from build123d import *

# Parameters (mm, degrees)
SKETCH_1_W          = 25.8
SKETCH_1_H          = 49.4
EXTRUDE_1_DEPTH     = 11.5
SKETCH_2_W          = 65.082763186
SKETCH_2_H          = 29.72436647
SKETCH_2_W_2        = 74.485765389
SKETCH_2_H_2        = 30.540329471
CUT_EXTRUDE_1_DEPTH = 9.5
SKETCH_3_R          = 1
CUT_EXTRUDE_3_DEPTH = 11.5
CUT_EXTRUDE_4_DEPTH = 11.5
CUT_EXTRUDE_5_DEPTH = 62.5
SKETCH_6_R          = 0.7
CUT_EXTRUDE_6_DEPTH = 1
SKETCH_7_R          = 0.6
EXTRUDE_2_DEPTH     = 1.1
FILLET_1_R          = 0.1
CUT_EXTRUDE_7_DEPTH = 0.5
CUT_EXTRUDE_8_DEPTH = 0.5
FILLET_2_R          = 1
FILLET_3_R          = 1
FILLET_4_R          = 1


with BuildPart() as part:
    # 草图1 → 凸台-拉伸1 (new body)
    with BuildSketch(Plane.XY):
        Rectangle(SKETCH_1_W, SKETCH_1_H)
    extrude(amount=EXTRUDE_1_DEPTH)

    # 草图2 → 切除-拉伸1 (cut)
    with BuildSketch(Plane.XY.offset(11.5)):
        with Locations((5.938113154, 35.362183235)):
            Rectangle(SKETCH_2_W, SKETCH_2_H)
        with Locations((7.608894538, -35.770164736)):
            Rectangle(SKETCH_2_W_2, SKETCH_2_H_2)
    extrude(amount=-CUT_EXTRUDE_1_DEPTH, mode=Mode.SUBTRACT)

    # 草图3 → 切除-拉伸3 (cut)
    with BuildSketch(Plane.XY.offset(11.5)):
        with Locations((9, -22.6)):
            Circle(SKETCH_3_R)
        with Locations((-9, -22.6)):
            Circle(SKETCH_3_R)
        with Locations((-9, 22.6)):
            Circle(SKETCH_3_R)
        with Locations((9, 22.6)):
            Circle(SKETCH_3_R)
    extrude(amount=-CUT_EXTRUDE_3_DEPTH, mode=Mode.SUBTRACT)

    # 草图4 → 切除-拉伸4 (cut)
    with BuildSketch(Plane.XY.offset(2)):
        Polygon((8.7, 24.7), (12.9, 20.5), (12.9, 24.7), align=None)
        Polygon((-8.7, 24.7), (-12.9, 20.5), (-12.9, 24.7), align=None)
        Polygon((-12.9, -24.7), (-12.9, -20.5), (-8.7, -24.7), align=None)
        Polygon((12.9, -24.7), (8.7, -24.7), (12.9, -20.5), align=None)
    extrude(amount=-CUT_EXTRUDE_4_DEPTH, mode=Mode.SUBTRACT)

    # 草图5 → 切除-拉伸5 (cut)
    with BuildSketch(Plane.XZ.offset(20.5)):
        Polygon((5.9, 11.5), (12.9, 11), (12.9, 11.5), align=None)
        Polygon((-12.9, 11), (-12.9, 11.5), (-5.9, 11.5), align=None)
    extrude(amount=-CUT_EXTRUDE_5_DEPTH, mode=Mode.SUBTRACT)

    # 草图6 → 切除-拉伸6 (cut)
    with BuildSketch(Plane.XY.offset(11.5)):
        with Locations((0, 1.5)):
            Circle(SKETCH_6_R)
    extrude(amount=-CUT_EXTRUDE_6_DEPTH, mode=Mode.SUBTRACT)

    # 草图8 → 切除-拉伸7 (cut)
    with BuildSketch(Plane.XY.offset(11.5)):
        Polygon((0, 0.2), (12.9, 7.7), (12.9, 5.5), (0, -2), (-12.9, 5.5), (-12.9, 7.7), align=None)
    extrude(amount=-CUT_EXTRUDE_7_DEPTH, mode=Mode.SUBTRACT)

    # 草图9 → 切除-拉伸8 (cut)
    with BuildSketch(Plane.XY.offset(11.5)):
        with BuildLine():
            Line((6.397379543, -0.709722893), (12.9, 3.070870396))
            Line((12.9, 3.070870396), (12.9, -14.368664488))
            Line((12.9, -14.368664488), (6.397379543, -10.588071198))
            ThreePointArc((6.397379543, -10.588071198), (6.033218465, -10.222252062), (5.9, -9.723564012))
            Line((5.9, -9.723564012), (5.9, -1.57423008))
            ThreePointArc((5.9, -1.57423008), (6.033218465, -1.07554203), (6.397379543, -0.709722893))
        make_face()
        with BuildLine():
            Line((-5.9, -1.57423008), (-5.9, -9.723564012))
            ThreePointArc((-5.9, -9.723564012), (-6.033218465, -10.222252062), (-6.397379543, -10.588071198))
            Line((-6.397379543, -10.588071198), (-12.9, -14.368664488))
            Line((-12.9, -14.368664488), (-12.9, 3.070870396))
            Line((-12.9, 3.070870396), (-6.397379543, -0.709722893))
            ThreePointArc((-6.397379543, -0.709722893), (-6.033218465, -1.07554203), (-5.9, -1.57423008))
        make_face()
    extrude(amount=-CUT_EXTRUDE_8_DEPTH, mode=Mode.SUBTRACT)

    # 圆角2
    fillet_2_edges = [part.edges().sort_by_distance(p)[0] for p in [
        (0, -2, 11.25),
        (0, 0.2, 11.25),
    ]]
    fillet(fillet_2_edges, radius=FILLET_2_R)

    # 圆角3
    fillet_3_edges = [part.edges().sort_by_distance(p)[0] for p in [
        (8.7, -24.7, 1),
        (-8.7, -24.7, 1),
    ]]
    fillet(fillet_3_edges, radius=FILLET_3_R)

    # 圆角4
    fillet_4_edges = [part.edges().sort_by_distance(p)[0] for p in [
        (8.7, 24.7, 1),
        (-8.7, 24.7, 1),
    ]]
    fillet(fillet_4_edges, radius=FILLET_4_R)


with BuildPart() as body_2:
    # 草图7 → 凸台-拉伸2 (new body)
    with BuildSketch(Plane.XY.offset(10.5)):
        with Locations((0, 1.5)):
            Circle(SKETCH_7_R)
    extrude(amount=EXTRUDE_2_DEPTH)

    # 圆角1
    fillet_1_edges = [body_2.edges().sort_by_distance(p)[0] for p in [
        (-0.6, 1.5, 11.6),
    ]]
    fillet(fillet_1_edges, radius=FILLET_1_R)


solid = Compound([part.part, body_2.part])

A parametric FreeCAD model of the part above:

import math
import FreeCAD as App
import Part
import Sketcher
from FreeCAD import Vector


def edges_at(feature, points):
    """Names of the edges that pass closest to the given points."""
    edges = feature.Shape.Edges
    near = lambda p: min(range(len(edges)), key=lambda i: edges[i].distToShape(Part.Vertex(*p))[0])
    return sorted({f"Edge{near(p) + 1}" for p in points})

doc = App.newDocument("Part")
params = doc.addObject("Spreadsheet::Sheet", "Params")
for row, (alias, value) in enumerate([
    ("sketch1_width", "25.8 mm"),
    ("sketch1_height", "49.4 mm"),
    ("pad1_length", "11.5 mm"),
    ("pocket1_length", "9.5 mm"),
    ("sketch3_diameter", "2 mm"),
    ("pocket2_length", "11.5 mm"),
    ("sketch4_width", "4.2 mm"),
    ("pocket3_length", "11.5 mm"),
    ("sketch5_width", "7 mm"),
    ("sketch5_height", "0.5 mm"),
    ("pocket4_length", "62.5 mm"),
    ("sketch6_diameter", "1.4 mm"),
    ("pocket5_length", "1 mm"),
    ("sketch7_height", "2.2 mm"),
    ("pocket6_length", "0.5 mm"),
    ("sketch8_radius", "1 mm"),
    ("pocket7_length", "0.5 mm"),
    ("fillet_radius", "1 mm"),
    ("fillet2_radius", "1 mm"),
    ("fillet3_radius", "1 mm"),
    ("sketch9_diameter", "1.2 mm"),
    ("pad2_length", "1.1 mm"),
    ("fillet4_radius", "0.1 mm"),
], start=1):
    params.set(f"A{row}", alias)
    params.set(f"B{row}", "=" + value)
    params.setAlias(f"B{row}", alias)

body = doc.addObject("PartDesign::Body", "Body")

sketch1 = body.newObject("Sketcher::SketchObject", "Sketch")
sketch1.AttachmentSupport = (doc.getObject("XY_Plane"), [""])
sketch1.MapMode = "FlatFace"
sketch1.addGeometry([
    Part.LineSegment(Vector(-13, 25, 0), Vector(-13, -25, 0)),
    Part.LineSegment(Vector(-13, -25, 0), Vector(13, -25, 0)),
    Part.LineSegment(Vector(13, -25, 0), Vector(13, 25, 0)),
    Part.LineSegment(Vector(13, 25, 0), Vector(-13, 25, 0)),
], False)
sketch1.addConstraint([
    Sketcher.Constraint("Coincident", 0, 2, 1, 1),
    Sketcher.Constraint("Coincident", 1, 2, 2, 1),
    Sketcher.Constraint("Coincident", 2, 2, 3, 1),
    Sketcher.Constraint("Coincident", 3, 2, 0, 1),
    Sketcher.Constraint("Vertical", 0),
    Sketcher.Constraint("Horizontal", 1),
    Sketcher.Constraint("Vertical", 2),
    Sketcher.Constraint("Horizontal", 3),
    Sketcher.Constraint("Symmetric", 0, 2, 2, 2, -1, 1),
    Sketcher.Constraint("DistanceX", 1, 1, 1, 2, 25.8),
    Sketcher.Constraint("DistanceY", 0, 2, 0, 1, 49.4),
])
sketch1.setExpression("Constraints[9]", "Params.sketch1_width")
sketch1.setExpression("Constraints[10]", "Params.sketch1_height")
pad1 = body.newObject("PartDesign::Pad", "Pad")
pad1.Profile = sketch1
pad1.setExpression("Length", "Params.pad1_length")

sketch2 = body.newObject("Sketcher::SketchObject", "Sketch001")
sketch2.AttachmentSupport = (doc.getObject("XY_Plane"), [""])
sketch2.MapMode = "FlatFace"
sketch2.AttachmentOffset = App.Placement(Vector(0, 0, 11.5), App.Rotation())
sketch2.addGeometry([
    Part.LineSegment(Vector(-27, 50, 0), Vector(-27, 20, 0)),
    Part.LineSegment(Vector(-27, 20, 0), Vector(38, 20, 0)),
    Part.LineSegment(Vector(38, 20, 0), Vector(38, 50, 0)),
    Part.LineSegment(Vector(38, 50, 0), Vector(-27, 50, 0)),
    Part.LineSegment(Vector(-30, -20, 0), Vector(-30, -51, 0)),
    Part.LineSegment(Vector(-30, -51, 0), Vector(45, -51, 0)),
    Part.LineSegment(Vector(45, -51, 0), Vector(45, -20, 0)),
    Part.LineSegment(Vector(45, -20, 0), Vector(-30, -20, 0)),
], False)
sketch2.addConstraint([
    Sketcher.Constraint("Coincident", 0, 2, 1, 1),
    Sketcher.Constraint("Coincident", 1, 2, 2, 1),
    Sketcher.Constraint("Coincident", 2, 2, 3, 1),
    Sketcher.Constraint("Coincident", 3, 2, 0, 1),
    Sketcher.Constraint("Coincident", 4, 2, 5, 1),
    Sketcher.Constraint("Coincident", 5, 2, 6, 1),
    Sketcher.Constraint("Coincident", 6, 2, 7, 1),
    Sketcher.Constraint("Coincident", 7, 2, 4, 1),
    Sketcher.Constraint("Vertical", 0),
    Sketcher.Constraint("Horizontal", 1),
    Sketcher.Constraint("Vertical", 2),
    Sketcher.Constraint("Horizontal", 3),
    Sketcher.Constraint("Vertical", 4),
    Sketcher.Constraint("Horizontal", 5),
    Sketcher.Constraint("Vertical", 6),
    Sketcher.Constraint("Horizontal", 7),
    Sketcher.Constraint("DistanceY", 6, 2, 1, 2, 41.0),
    Sketcher.Constraint("DistanceY", -1, 1, 0, 2, 20.5),
    Sketcher.Constraint("DistanceY", 4, 2, 4, 1, 30.540329),
    Sketcher.Constraint("DistanceX", 1, 1, 1, 2, 65.082763),
    Sketcher.Constraint("DistanceX", 5, 1, 5, 2, 74.485765),
    Sketcher.Constraint("DistanceY", 0, 2, 0, 1, 29.724366),
    Sketcher.Constraint("DistanceX", 0, 2, -1, 1, 26.603268),
    Sketcher.Constraint("DistanceX", 4, 2, -1, 1, 29.633988),
])
pocket1 = body.newObject("PartDesign::Pocket", "Pocket")
pocket1.Profile = sketch2
pocket1.setExpression("Length", "Params.pocket1_length")

sketch3 = body.newObject("Sketcher::SketchObject", "Sketch002")
sketch3.AttachmentSupport = (doc.getObject("XY_Plane"), [""])
sketch3.MapMode = "FlatFace"
sketch3.AttachmentOffset = App.Placement(Vector(0, 0, 11.5), App.Rotation())
sketch3.addGeometry([
    Part.Circle(Vector(9, -22.6, 0), Vector(0, 0, 1), 1),
    Part.Circle(Vector(-9, -22.6, 0), Vector(0, 0, 1), 1),
    Part.Circle(Vector(-9, 22.6, 0), Vector(0, 0, 1), 1),
    Part.Circle(Vector(9, 22.6, 0), Vector(0, 0, 1), 1),
], False)
sketch3.addConstraint([
    Sketcher.Constraint("Equal", 0, 1),
    Sketcher.Constraint("Equal", 1, 2),
    Sketcher.Constraint("Equal", 2, 3),
    Sketcher.Constraint("Symmetric", 0, 3, 2, 3, -1, 1),
    Sketcher.Constraint("Symmetric", 1, 3, 3, 3, -1, 1),
    Sketcher.Constraint("Symmetric", 0, 3, 1, 3, -2),
    Sketcher.Constraint("Diameter", 0, 2.0),
    Sketcher.Constraint("DistanceX", -1, 1, 0, 3, 9.0),
    Sketcher.Constraint("DistanceY", 0, 3, -1, 1, 22.6),
])
sketch3.setExpression("Constraints[6]", "Params.sketch3_diameter")
pocket2 = body.newObject("PartDesign::Pocket", "Pocket001")
pocket2.Profile = sketch3
pocket2.setExpression("Length", "Params.pocket2_length")

sketch4 = body.newObject("Sketcher::SketchObject", "Sketch003")
sketch4.AttachmentSupport = (doc.getObject("XY_Plane"), [""])
sketch4.MapMode = "FlatFace"
sketch4.AttachmentOffset = App.Placement(Vector(0, 0, 2), App.Rotation())
sketch4.addGeometry([
    Part.LineSegment(Vector(8.7, 24.7, 0), Vector(12.9, 20.5, 0)),
    Part.LineSegment(Vector(12.9, 20.5, 0), Vector(12.9, 24.7, 0)),
    Part.LineSegment(Vector(12.9, 24.7, 0), Vector(8.7, 24.7, 0)),
    Part.LineSegment(Vector(-12.9, 20.5, 0), Vector(-8.7, 24.7, 0)),
    Part.LineSegment(Vector(-8.7, 24.7, 0), Vector(-12.9, 24.7, 0)),
    Part.LineSegment(Vector(-12.9, 24.7, 0), Vector(-12.9, 20.5, 0)),
    Part.LineSegment(Vector(-12.9, -20.5, 0), Vector(-12.9, -24.7, 0)),
    Part.LineSegment(Vector(-12.9, -24.7, 0), Vector(-8.7, -24.7, 0)),
    Part.LineSegment(Vector(-8.7, -24.7, 0), Vector(-12.9, -20.5, 0)),
    Part.LineSegment(Vector(8.7, -24.7, 0), Vector(12.9, -24.7, 0)),
    Part.LineSegment(Vector(12.9, -24.7, 0), Vector(12.9, -20.5, 0)),
    Part.LineSegment(Vector(12.9, -20.5, 0), Vector(8.7, -24.7, 0)),
], False)
sketch4.addConstraint([
    Sketcher.Constraint("Coincident", 0, 2, 1, 1),
    Sketcher.Constraint("Coincident", 1, 2, 2, 1),
    Sketcher.Constraint("Coincident", 2, 2, 0, 1),
    Sketcher.Constraint("Coincident", 3, 2, 4, 1),
    Sketcher.Constraint("Coincident", 4, 2, 5, 1),
    Sketcher.Constraint("Coincident", 5, 2, 3, 1),
    Sketcher.Constraint("Coincident", 6, 2, 7, 1),
    Sketcher.Constraint("Coincident", 7, 2, 8, 1),
    Sketcher.Constraint("Coincident", 8, 2, 6, 1),
    Sketcher.Constraint("Coincident", 9, 2, 10, 1),
    Sketcher.Constraint("Coincident", 10, 2, 11, 1),
    Sketcher.Constraint("Coincident", 11, 2, 9, 1),
    Sketcher.Constraint("Vertical", 1),
    Sketcher.Constraint("Horizontal", 2),
    Sketcher.Constraint("Horizontal", 4),
    Sketcher.Constraint("Vertical", 5),
    Sketcher.Constraint("Vertical", 6),
    Sketcher.Constraint("Horizontal", 7),
    Sketcher.Constraint("Horizontal", 9),
    Sketcher.Constraint("Vertical", 10),
    Sketcher.Constraint("Symmetric", 1, 2, 6, 2, -1, 1),
    Sketcher.Constraint("Symmetric", 4, 2, 9, 2, -1, 1),
    Sketcher.Constraint("Symmetric", 2, 2, 3, 2, -2),
    Sketcher.Constraint("Symmetric", 0, 2, 5, 2, -2),
    Sketcher.Constraint("Perpendicular", 0, 3),
    Sketcher.Constraint("Perpendicular", 3, 8),
    Sketcher.Constraint("Perpendicular", 8, 11),
    Sketcher.Constraint("Horizontal", 8, 2, 10, 2),
    Sketcher.Constraint("Vertical", 3, 2, 7, 2),
    Sketcher.Constraint("DistanceX", 2, 2, 2, 1, 4.2),
    Sketcher.Constraint("DistanceY", 8, 2, 5, 2, 41.0),
    Sketcher.Constraint("DistanceX", -1, 1, 0, 2, 12.9),
])
sketch4.setExpression("Constraints[29]", "Params.sketch4_width")
pocket3 = body.newObject("PartDesign::Pocket", "Pocket002")
pocket3.Profile = sketch4
pocket3.setExpression("Length", "Params.pocket3_length")

sketch5 = body.newObject("Sketcher::SketchObject", "Sketch004")
sketch5.AttachmentSupport = (doc.getObject("XZ_Plane"), [""])
sketch5.MapMode = "FlatFace"
sketch5.AttachmentOffset = App.Placement(Vector(0, 0, 20.5), App.Rotation())
sketch5.addGeometry([
    Part.LineSegment(Vector(5.9, 11.5, 0), Vector(12.9, 11, 0)),
    Part.LineSegment(Vector(12.9, 11, 0), Vector(12.9, 11.5, 0)),
    Part.LineSegment(Vector(12.9, 11.5, 0), Vector(5.9, 11.5, 0)),
    Part.LineSegment(Vector(-12.9, 11.5, 0), Vector(-12.9, 11, 0)),
    Part.LineSegment(Vector(-12.9, 11, 0), Vector(-5.9, 11.5, 0)),
    Part.LineSegment(Vector(-5.9, 11.5, 0), Vector(-12.9, 11.5, 0)),
], False)
sketch5.addConstraint([
    Sketcher.Constraint("Coincident", 0, 2, 1, 1),
    Sketcher.Constraint("Coincident", 1, 2, 2, 1),
    Sketcher.Constraint("Coincident", 2, 2, 0, 1),
    Sketcher.Constraint("Coincident", 3, 2, 4, 1),
    Sketcher.Constraint("Coincident", 4, 2, 5, 1),
    Sketcher.Constraint("Coincident", 5, 2, 3, 1),
    Sketcher.Constraint("Vertical", 1),
    Sketcher.Constraint("Horizontal", 2),
    Sketcher.Constraint("Vertical", 3),
    Sketcher.Constraint("Horizontal", 5),
    Sketcher.Constraint("Symmetric", 0, 2, 3, 2, -2),
    Sketcher.Constraint("Symmetric", 2, 2, 4, 2, -2),
    Sketcher.Constraint("DistanceX", 2, 2, 2, 1, 7.0),
    Sketcher.Constraint("DistanceY", 1, 1, 1, 2, 0.5),
    Sketcher.Constraint("DistanceY", -1, 1, 0, 2, 11.0),
    Sketcher.Constraint("DistanceX", -1, 1, 0, 2, 12.9),
])
sketch5.setExpression("Constraints[12]", "Params.sketch5_width")
sketch5.setExpression("Constraints[13]", "Params.sketch5_height")
pocket4 = body.newObject("PartDesign::Pocket", "Pocket003")
pocket4.Profile = sketch5
pocket4.setExpression("Length", "Params.pocket4_length")

sketch6 = body.newObject("Sketcher::SketchObject", "Sketch005")
sketch6.AttachmentSupport = (doc.getObject("XY_Plane"), [""])
sketch6.MapMode = "FlatFace"
sketch6.AttachmentOffset = App.Placement(Vector(0, 0, 11.5), App.Rotation())
sketch6.addGeometry(Part.Circle(Vector(0, 1.5, 0), Vector(0, 0, 1), 0.7), False)
sketch6.addConstraint([
    Sketcher.Constraint("PointOnObject", 0, 3, -2),
    Sketcher.Constraint("Diameter", 0, 1.4),
    Sketcher.Constraint("DistanceY", -1, 1, 0, 3, 1.5),
])
sketch6.setExpression("Constraints[1]", "Params.sketch6_diameter")
pocket5 = body.newObject("PartDesign::Pocket", "Pocket004")
pocket5.Profile = sketch6
pocket5.setExpression("Length", "Params.pocket5_length")

sketch7 = body.newObject("Sketcher::SketchObject", "Sketch006")
sketch7.AttachmentSupport = (doc.getObject("XY_Plane"), [""])
sketch7.MapMode = "FlatFace"
sketch7.AttachmentOffset = App.Placement(Vector(0, 0, 11.5), App.Rotation())
sketch7.addGeometry([
    Part.LineSegment(Vector(12.9, 7.7, 0), Vector(0, 0.2, 0)),
    Part.LineSegment(Vector(0, 0.2, 0), Vector(-12.9, 7.7, 0)),
    Part.LineSegment(Vector(-12.9, 7.7, 0), Vector(-12.9, 5.5, 0)),
    Part.LineSegment(Vector(-12.9, 5.5, 0), Vector(0, -2, 0)),
    Part.LineSegment(Vector(0, -2, 0), Vector(12.9, 5.5, 0)),
    Part.LineSegment(Vector(12.9, 5.5, 0), Vector(12.9, 7.7, 0)),
], False)
sketch7.addConstraint([
    Sketcher.Constraint("Coincident", 0, 2, 1, 1),
    Sketcher.Constraint("Coincident", 1, 2, 2, 1),
    Sketcher.Constraint("Coincident", 2, 2, 3, 1),
    Sketcher.Constraint("Coincident", 3, 2, 4, 1),
    Sketcher.Constraint("Coincident", 4, 2, 5, 1),
    Sketcher.Constraint("Coincident", 5, 2, 0, 1),
    Sketcher.Constraint("Vertical", 2),
    Sketcher.Constraint("Vertical", 5),
    Sketcher.Constraint("Symmetric", 2, 2, 4, 2, -2),
    Sketcher.Constraint("PointOnObject", 0, 2, -2),
    Sketcher.Constraint("PointOnObject", 3, 2, -2),
    Sketcher.Constraint("Parallel", 1, 3),
    Sketcher.Constraint("Parallel", 0, 4),
    Sketcher.Constraint("DistanceY", 2, 2, 2, 1, 2.2),
    Sketcher.Constraint("DistanceY", 3, 2, -1, 1, 2.0),
    Sketcher.Constraint("DistanceX", 1, 2, -1, 1, 12.9),
    Sketcher.Constraint("DistanceY", -1, 1, 1, 2, 7.7),
])
sketch7.setExpression("Constraints[13]", "Params.sketch7_height")
pocket6 = body.newObject("PartDesign::Pocket", "Pocket005")
pocket6.Profile = sketch7
pocket6.setExpression("Length", "Params.pocket6_length")

sketch8 = body.newObject("Sketcher::SketchObject", "Sketch007")
sketch8.AttachmentSupport = (doc.getObject("XY_Plane"), [""])
sketch8.MapMode = "FlatFace"
sketch8.AttachmentOffset = App.Placement(Vector(0, 0, 11.5), App.Rotation())
sketch8.addGeometry([
    Part.LineSegment(Vector(12.9, 3.1, 0), Vector(6.4, -0.7, 0)),
    Part.ArcOfCircle(Part.Circle(Vector(6.9, -1.6, 0), Vector(0, 0, 1), 1), math.radians(120), math.radians(180)),
    Part.LineSegment(Vector(5.9, -1.6, 0), Vector(5.9, -9.7, 0)),
    Part.ArcOfCircle(Part.Circle(Vector(6.9, -9.7, 0), Vector(0, 0, 1), 1), math.radians(180), math.radians(240)),
    Part.LineSegment(Vector(6.4, -10.6, 0), Vector(12.9, -14.4, 0)),
    Part.LineSegment(Vector(12.9, -14.4, 0), Vector(12.9, 3.1, 0)),
    Part.LineSegment(Vector(-5.9, -9.7, 0), Vector(-5.9, -1.6, 0)),
    Part.ArcOfCircle(Part.Circle(Vector(-6.9, -1.6, 0), Vector(0, 0, 1), 1), math.radians(0), math.radians(60)),
    Part.LineSegment(Vector(-6.4, -0.7, 0), Vector(-12.9, 3.1, 0)),
    Part.LineSegment(Vector(-12.9, 3.1, 0), Vector(-12.9, -14.4, 0)),
    Part.LineSegment(Vector(-12.9, -14.4, 0), Vector(-6.4, -10.6, 0)),
    Part.ArcOfCircle(Part.Circle(Vector(-6.9, -9.7, 0), Vector(0, 0, 1), 1), math.radians(-60), math.radians(0)),
], False)
sketch8.addConstraint([
    Sketcher.Constraint("Tangent", 0, 2, 1, 1),
    Sketcher.Constraint("Tangent", 1, 2, 2, 1),
    Sketcher.Constraint("Tangent", 2, 2, 3, 1),
    Sketcher.Constraint("Tangent", 3, 2, 4, 1),
    Sketcher.Constraint("Coincident", 4, 2, 5, 1),
    Sketcher.Constraint("Coincident", 5, 2, 0, 1),
    Sketcher.Constraint("Tangent", 6, 2, 7, 1),
    Sketcher.Constraint("Tangent", 7, 2, 8, 1),
    Sketcher.Constraint("Coincident", 8, 2, 9, 1),
    Sketcher.Constraint("Coincident", 9, 2, 10, 1),
    Sketcher.Constraint("Tangent", 10, 2, 11, 1),
    Sketcher.Constraint("Tangent", 11, 2, 6, 1),
    Sketcher.Constraint("Vertical", 2),
    Sketcher.Constraint("Vertical", 5),
    Sketcher.Constraint("Vertical", 6),
    Sketcher.Constraint("Vertical", 9),
    Sketcher.Constraint("Equal", 1, 3),
    Sketcher.Constraint("Equal", 3, 7),
    Sketcher.Constraint("Equal", 7, 11),
    Sketcher.Constraint("Symmetric", 1, 3, 7, 3, -2),
    Sketcher.Constraint("Symmetric", 5, 2, 8, 2, -2),
    Sketcher.Constraint("Symmetric", 3, 2, 10, 2, -2),
    Sketcher.Constraint("Parallel", 4, 8),
    Sketcher.Constraint("Radius", 1, 1.0),
    Sketcher.Constraint("DistanceX", 3, 3, 4, 2, 6.0),
    Sketcher.Constraint("DistanceX", -1, 1, 1, 3, 6.9),
    Sketcher.Constraint("DistanceY", 4, 2, 3, 3, 4.6451),
    Sketcher.Constraint("DistanceY", 2, 2, 2, 1, 8.149334),
    Sketcher.Constraint("DistanceY", 1, 3, -1, 1, 1.57423),
])
sketch8.setExpression("Constraints[23]", "Params.sketch8_radius")
pocket7 = body.newObject("PartDesign::Pocket", "Pocket006")
pocket7.Profile = sketch8
pocket7.setExpression("Length", "Params.pocket7_length")
doc.recompute()

fillet = body.newObject("PartDesign::Fillet", "Fillet")
fillet.Base = (pocket7, edges_at(pocket7, [(0, -2, 11.25), (0, 0.2, 11.25)]))
fillet.setExpression("Radius", "Params.fillet_radius")
doc.recompute()

fillet2 = body.newObject("PartDesign::Fillet", "Fillet001")
fillet2.Base = (fillet, edges_at(fillet, [(8.7, -24.7, 1), (-8.7, -24.7, 1)]))
fillet2.setExpression("Radius", "Params.fillet2_radius")
doc.recompute()

fillet3 = body.newObject("PartDesign::Fillet", "Fillet002")
fillet3.Base = (fillet2, edges_at(fillet2, [(8.7, 24.7, 1), (-8.7, 24.7, 1)]))
fillet3.setExpression("Radius", "Params.fillet3_radius")
body2 = doc.addObject("PartDesign::Body", "Body001")

sketch9 = body2.newObject("Sketcher::SketchObject", "Sketch008")
sketch9.AttachmentSupport = (doc.getObject("XY_Plane001"), [""])
sketch9.MapMode = "FlatFace"
sketch9.AttachmentOffset = App.Placement(Vector(0, 0, 10.5), App.Rotation())
sketch9.addGeometry(Part.Circle(Vector(0, 1.5, 0), Vector(0, 0, 1), 0.6), False)
sketch9.addConstraint([
    Sketcher.Constraint("PointOnObject", 0, 3, -2),
    Sketcher.Constraint("Diameter", 0, 1.2),
    Sketcher.Constraint("DistanceY", -1, 1, 0, 3, 1.5),
])
sketch9.setExpression("Constraints[1]", "Params.sketch9_diameter")
pad2 = body2.newObject("PartDesign::Pad", "Pad001")
pad2.Profile = sketch9
pad2.setExpression("Length", "Params.pad2_length")
doc.recompute()

fillet4 = body2.newObject("PartDesign::Fillet", "Fillet003")
fillet4.Base = (pad2, edges_at(pad2, [(-0.6, 1.5, 11.6)]))
fillet4.setExpression("Radius", "Params.fillet4_radius")

doc.recompute()
